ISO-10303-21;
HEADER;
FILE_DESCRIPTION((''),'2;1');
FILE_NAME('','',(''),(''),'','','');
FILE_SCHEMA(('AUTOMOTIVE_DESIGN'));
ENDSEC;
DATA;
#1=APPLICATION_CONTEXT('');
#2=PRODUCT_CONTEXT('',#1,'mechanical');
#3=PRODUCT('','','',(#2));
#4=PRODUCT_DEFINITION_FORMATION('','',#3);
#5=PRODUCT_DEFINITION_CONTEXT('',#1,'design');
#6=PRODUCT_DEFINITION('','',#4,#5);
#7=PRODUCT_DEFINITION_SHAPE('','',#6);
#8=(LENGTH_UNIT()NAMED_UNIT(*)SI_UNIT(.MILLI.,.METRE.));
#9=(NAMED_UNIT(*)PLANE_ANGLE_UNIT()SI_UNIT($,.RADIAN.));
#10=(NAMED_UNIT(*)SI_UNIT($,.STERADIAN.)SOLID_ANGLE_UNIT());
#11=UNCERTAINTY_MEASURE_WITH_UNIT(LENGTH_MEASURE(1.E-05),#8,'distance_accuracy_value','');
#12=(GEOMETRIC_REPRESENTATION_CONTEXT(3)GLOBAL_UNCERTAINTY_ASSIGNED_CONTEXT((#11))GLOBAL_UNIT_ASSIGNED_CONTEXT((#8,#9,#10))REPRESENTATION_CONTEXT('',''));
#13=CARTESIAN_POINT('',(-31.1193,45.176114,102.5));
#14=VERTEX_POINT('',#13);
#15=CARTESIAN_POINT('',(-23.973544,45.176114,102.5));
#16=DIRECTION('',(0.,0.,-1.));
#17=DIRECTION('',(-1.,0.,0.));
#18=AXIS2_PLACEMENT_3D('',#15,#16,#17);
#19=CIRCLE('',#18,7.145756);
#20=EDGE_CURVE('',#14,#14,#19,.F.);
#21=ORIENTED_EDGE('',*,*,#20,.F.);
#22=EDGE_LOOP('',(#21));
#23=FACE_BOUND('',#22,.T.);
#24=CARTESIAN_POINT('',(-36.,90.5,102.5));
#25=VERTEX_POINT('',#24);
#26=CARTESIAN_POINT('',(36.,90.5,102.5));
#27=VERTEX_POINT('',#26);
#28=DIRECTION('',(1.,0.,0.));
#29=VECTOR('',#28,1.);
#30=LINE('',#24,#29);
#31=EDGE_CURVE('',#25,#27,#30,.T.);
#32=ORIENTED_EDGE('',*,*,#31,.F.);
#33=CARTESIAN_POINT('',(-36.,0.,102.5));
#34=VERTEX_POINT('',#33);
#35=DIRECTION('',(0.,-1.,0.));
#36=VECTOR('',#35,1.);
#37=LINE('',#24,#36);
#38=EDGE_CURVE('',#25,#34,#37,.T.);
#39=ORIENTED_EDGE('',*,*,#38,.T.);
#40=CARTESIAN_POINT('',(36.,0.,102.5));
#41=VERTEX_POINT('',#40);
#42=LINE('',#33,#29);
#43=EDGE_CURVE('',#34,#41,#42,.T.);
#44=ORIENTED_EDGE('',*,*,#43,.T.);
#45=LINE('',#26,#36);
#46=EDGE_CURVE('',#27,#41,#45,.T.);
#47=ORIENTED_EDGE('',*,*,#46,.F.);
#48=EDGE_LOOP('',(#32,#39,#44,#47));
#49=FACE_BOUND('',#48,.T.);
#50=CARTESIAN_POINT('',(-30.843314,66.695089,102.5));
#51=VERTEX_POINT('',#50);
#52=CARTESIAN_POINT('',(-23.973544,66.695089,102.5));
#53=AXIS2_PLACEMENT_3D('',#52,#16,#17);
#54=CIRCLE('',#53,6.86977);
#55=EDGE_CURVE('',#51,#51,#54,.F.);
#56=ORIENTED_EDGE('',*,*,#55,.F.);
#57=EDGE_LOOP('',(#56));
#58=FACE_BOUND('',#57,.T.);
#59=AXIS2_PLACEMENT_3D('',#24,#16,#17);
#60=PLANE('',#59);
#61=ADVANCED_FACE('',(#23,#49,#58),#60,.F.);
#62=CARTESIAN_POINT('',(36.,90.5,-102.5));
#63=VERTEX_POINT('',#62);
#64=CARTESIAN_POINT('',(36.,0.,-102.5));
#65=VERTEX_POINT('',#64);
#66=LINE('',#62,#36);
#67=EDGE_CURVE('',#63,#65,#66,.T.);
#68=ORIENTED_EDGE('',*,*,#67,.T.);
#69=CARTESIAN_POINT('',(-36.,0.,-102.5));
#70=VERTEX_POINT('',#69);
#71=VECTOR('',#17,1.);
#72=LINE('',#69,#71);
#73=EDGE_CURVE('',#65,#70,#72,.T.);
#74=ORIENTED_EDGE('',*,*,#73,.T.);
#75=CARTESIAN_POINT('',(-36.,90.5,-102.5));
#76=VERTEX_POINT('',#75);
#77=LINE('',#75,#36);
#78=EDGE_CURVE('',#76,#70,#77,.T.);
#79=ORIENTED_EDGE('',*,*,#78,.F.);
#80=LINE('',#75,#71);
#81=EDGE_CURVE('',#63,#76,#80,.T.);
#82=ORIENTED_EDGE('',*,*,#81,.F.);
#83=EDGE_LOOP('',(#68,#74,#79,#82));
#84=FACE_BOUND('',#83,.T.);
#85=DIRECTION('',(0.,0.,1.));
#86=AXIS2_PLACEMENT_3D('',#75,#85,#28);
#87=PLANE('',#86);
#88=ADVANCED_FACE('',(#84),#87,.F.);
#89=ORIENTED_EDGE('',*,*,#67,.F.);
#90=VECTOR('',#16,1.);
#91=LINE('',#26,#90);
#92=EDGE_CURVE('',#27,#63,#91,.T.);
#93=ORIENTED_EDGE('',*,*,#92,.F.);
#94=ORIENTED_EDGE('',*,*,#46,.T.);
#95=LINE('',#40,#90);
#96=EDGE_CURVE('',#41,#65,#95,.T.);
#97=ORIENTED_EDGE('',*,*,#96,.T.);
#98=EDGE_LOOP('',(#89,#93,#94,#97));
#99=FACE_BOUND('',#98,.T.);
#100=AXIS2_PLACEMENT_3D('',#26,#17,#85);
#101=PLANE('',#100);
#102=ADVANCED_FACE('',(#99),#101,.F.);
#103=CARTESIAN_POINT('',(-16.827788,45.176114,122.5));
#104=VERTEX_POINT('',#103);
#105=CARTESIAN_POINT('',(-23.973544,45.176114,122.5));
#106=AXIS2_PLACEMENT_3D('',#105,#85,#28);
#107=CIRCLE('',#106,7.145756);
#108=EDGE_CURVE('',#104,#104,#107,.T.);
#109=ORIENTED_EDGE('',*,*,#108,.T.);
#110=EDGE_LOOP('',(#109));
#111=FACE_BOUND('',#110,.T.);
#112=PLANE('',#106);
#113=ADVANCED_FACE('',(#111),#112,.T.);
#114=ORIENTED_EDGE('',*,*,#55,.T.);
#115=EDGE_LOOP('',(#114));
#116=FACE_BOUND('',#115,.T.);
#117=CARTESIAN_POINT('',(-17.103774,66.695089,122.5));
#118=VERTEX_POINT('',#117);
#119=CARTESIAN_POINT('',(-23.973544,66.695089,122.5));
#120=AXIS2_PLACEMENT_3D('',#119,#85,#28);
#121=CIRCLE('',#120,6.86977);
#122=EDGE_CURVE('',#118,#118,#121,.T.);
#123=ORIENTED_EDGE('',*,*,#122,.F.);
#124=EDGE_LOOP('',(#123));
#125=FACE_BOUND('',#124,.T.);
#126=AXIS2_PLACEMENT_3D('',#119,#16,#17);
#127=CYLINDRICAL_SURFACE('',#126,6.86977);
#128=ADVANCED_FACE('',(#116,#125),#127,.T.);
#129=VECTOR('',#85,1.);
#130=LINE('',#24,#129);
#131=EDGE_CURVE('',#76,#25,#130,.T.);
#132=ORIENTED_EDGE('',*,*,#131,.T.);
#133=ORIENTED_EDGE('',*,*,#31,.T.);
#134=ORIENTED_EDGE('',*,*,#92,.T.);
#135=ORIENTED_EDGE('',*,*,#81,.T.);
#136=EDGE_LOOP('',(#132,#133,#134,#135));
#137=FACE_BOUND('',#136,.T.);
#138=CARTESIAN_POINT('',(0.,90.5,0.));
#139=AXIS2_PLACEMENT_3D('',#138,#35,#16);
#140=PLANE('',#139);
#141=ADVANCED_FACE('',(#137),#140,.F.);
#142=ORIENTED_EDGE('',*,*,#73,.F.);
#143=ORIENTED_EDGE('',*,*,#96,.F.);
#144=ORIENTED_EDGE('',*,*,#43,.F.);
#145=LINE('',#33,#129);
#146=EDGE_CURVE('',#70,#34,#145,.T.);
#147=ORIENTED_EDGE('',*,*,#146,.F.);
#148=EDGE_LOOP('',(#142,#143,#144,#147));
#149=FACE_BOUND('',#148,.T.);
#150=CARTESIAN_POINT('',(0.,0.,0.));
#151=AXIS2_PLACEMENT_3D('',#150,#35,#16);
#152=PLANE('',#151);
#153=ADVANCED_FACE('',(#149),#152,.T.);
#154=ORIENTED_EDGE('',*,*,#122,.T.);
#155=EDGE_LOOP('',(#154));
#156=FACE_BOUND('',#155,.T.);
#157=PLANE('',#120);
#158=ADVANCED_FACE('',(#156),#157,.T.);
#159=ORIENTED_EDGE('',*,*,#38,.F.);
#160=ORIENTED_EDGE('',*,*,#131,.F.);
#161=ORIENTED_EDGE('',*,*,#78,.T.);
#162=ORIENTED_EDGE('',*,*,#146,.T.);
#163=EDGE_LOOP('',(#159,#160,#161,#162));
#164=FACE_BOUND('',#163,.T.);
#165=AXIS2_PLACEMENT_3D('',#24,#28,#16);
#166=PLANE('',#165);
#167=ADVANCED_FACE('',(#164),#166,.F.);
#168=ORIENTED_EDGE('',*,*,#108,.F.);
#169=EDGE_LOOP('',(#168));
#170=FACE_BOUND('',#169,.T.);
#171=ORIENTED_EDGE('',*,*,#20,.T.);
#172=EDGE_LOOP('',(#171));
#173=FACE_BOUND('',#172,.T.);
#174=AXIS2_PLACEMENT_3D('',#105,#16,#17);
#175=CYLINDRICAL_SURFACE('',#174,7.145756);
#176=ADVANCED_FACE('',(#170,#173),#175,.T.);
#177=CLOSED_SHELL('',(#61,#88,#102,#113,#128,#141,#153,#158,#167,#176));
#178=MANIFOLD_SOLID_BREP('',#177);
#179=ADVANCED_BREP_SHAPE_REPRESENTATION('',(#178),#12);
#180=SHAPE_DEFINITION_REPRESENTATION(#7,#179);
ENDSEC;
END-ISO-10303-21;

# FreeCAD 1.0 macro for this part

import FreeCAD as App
import Part
import Sketcher


def add_polygon(sketch, points):
    """Adds a closed chain of lines whose ends are joined by coincident constraints."""
    first, n = sketch.GeometryCount, len(points)
    for a, b in zip(points, points[1:] + points[:1]):
        sketch.addGeometry(Part.LineSegment(App.Vector(*a, 0), App.Vector(*b, 0)), False)
    for i in range(n):
        sketch.addConstraint(Sketcher.Constraint("Coincident", first + i, 2, first + (i + 1) % n, 1))

doc = App.newDocument("Part")
body = doc.addObject("PartDesign::Body", "Body")

# Sketch on XZ plane
sketch1 = doc.addObject("Sketcher::SketchObject", "Sketch")
body.addObject(sketch1)
sketch1.AttachmentSupport = (doc.XZ_Plane, [""])
sketch1.MapMode = "FlatFace"
add_polygon(sketch1, [(-36, -102.5), (-36, 102.5), (36, 102.5), (36, -102.5)])  # lines 0-3
sketch1.addConstraint([
    Sketcher.Constraint("Vertical", 0),
    Sketcher.Constraint("Horizontal", 1),
    Sketcher.Constraint("Vertical", 2),
    Sketcher.Constraint("Horizontal", 3),
    Sketcher.Constraint("Symmetric", 0, 2, 2, 2, -1, 1),
    Sketcher.Constraint("DistanceX", 1, 1, 1, 2, 72.0),
    Sketcher.Constraint("DistanceY", 0, 1, 0, 2, 205.0),
])
pad1 = doc.addObject("PartDesign::Pad", "Pad")
body.addObject(pad1)
pad1.Profile = sketch1
pad1.Length = 90.5
pad1.Reversed = True

# Sketch on XY plane
sketch2 = doc.addObject("Sketcher::SketchObject", "Sketch001")
body.addObject(sketch2)
sketch2.AttachmentSupport = (doc.XY_Plane, [""])
sketch2.MapMode = "FlatFace"
sketch2.AttachmentOffset = App.Placement(App.Vector(0, 0, 102.5), App.Rotation())
sketch2.addGeometry([
    Part.Circle(App.Vector(-23.973544, 66.695089, 0), App.Vector(0, 0, 1), 6.86977),
    Part.Circle(App.Vector(-23.973544, 45.176114, 0), App.Vector(0, 0, 1), 7.145756),
], False)
sketch2.addConstraint([
    Sketcher.Constraint("Vertical", 0, 3, 1, 3),
    Sketcher.Constraint("Diameter", 0, 13.73954),
    Sketcher.Constraint("Diameter", 1, 14.291512),
    Sketcher.Constraint("DistanceY", -1, 1, 0, 3, 66.695089),
    Sketcher.Constraint("DistanceX", 0, 3, -1, 1, 23.973544),
    Sketcher.Constraint("DistanceY", -1, 1, 1, 3, 45.176114),
])
pad2 = doc.addObject("PartDesign::Pad", "Pad001")
body.addObject(pad2)
pad2.Profile = sketch2
pad2.Length = 20

doc.recompute()
